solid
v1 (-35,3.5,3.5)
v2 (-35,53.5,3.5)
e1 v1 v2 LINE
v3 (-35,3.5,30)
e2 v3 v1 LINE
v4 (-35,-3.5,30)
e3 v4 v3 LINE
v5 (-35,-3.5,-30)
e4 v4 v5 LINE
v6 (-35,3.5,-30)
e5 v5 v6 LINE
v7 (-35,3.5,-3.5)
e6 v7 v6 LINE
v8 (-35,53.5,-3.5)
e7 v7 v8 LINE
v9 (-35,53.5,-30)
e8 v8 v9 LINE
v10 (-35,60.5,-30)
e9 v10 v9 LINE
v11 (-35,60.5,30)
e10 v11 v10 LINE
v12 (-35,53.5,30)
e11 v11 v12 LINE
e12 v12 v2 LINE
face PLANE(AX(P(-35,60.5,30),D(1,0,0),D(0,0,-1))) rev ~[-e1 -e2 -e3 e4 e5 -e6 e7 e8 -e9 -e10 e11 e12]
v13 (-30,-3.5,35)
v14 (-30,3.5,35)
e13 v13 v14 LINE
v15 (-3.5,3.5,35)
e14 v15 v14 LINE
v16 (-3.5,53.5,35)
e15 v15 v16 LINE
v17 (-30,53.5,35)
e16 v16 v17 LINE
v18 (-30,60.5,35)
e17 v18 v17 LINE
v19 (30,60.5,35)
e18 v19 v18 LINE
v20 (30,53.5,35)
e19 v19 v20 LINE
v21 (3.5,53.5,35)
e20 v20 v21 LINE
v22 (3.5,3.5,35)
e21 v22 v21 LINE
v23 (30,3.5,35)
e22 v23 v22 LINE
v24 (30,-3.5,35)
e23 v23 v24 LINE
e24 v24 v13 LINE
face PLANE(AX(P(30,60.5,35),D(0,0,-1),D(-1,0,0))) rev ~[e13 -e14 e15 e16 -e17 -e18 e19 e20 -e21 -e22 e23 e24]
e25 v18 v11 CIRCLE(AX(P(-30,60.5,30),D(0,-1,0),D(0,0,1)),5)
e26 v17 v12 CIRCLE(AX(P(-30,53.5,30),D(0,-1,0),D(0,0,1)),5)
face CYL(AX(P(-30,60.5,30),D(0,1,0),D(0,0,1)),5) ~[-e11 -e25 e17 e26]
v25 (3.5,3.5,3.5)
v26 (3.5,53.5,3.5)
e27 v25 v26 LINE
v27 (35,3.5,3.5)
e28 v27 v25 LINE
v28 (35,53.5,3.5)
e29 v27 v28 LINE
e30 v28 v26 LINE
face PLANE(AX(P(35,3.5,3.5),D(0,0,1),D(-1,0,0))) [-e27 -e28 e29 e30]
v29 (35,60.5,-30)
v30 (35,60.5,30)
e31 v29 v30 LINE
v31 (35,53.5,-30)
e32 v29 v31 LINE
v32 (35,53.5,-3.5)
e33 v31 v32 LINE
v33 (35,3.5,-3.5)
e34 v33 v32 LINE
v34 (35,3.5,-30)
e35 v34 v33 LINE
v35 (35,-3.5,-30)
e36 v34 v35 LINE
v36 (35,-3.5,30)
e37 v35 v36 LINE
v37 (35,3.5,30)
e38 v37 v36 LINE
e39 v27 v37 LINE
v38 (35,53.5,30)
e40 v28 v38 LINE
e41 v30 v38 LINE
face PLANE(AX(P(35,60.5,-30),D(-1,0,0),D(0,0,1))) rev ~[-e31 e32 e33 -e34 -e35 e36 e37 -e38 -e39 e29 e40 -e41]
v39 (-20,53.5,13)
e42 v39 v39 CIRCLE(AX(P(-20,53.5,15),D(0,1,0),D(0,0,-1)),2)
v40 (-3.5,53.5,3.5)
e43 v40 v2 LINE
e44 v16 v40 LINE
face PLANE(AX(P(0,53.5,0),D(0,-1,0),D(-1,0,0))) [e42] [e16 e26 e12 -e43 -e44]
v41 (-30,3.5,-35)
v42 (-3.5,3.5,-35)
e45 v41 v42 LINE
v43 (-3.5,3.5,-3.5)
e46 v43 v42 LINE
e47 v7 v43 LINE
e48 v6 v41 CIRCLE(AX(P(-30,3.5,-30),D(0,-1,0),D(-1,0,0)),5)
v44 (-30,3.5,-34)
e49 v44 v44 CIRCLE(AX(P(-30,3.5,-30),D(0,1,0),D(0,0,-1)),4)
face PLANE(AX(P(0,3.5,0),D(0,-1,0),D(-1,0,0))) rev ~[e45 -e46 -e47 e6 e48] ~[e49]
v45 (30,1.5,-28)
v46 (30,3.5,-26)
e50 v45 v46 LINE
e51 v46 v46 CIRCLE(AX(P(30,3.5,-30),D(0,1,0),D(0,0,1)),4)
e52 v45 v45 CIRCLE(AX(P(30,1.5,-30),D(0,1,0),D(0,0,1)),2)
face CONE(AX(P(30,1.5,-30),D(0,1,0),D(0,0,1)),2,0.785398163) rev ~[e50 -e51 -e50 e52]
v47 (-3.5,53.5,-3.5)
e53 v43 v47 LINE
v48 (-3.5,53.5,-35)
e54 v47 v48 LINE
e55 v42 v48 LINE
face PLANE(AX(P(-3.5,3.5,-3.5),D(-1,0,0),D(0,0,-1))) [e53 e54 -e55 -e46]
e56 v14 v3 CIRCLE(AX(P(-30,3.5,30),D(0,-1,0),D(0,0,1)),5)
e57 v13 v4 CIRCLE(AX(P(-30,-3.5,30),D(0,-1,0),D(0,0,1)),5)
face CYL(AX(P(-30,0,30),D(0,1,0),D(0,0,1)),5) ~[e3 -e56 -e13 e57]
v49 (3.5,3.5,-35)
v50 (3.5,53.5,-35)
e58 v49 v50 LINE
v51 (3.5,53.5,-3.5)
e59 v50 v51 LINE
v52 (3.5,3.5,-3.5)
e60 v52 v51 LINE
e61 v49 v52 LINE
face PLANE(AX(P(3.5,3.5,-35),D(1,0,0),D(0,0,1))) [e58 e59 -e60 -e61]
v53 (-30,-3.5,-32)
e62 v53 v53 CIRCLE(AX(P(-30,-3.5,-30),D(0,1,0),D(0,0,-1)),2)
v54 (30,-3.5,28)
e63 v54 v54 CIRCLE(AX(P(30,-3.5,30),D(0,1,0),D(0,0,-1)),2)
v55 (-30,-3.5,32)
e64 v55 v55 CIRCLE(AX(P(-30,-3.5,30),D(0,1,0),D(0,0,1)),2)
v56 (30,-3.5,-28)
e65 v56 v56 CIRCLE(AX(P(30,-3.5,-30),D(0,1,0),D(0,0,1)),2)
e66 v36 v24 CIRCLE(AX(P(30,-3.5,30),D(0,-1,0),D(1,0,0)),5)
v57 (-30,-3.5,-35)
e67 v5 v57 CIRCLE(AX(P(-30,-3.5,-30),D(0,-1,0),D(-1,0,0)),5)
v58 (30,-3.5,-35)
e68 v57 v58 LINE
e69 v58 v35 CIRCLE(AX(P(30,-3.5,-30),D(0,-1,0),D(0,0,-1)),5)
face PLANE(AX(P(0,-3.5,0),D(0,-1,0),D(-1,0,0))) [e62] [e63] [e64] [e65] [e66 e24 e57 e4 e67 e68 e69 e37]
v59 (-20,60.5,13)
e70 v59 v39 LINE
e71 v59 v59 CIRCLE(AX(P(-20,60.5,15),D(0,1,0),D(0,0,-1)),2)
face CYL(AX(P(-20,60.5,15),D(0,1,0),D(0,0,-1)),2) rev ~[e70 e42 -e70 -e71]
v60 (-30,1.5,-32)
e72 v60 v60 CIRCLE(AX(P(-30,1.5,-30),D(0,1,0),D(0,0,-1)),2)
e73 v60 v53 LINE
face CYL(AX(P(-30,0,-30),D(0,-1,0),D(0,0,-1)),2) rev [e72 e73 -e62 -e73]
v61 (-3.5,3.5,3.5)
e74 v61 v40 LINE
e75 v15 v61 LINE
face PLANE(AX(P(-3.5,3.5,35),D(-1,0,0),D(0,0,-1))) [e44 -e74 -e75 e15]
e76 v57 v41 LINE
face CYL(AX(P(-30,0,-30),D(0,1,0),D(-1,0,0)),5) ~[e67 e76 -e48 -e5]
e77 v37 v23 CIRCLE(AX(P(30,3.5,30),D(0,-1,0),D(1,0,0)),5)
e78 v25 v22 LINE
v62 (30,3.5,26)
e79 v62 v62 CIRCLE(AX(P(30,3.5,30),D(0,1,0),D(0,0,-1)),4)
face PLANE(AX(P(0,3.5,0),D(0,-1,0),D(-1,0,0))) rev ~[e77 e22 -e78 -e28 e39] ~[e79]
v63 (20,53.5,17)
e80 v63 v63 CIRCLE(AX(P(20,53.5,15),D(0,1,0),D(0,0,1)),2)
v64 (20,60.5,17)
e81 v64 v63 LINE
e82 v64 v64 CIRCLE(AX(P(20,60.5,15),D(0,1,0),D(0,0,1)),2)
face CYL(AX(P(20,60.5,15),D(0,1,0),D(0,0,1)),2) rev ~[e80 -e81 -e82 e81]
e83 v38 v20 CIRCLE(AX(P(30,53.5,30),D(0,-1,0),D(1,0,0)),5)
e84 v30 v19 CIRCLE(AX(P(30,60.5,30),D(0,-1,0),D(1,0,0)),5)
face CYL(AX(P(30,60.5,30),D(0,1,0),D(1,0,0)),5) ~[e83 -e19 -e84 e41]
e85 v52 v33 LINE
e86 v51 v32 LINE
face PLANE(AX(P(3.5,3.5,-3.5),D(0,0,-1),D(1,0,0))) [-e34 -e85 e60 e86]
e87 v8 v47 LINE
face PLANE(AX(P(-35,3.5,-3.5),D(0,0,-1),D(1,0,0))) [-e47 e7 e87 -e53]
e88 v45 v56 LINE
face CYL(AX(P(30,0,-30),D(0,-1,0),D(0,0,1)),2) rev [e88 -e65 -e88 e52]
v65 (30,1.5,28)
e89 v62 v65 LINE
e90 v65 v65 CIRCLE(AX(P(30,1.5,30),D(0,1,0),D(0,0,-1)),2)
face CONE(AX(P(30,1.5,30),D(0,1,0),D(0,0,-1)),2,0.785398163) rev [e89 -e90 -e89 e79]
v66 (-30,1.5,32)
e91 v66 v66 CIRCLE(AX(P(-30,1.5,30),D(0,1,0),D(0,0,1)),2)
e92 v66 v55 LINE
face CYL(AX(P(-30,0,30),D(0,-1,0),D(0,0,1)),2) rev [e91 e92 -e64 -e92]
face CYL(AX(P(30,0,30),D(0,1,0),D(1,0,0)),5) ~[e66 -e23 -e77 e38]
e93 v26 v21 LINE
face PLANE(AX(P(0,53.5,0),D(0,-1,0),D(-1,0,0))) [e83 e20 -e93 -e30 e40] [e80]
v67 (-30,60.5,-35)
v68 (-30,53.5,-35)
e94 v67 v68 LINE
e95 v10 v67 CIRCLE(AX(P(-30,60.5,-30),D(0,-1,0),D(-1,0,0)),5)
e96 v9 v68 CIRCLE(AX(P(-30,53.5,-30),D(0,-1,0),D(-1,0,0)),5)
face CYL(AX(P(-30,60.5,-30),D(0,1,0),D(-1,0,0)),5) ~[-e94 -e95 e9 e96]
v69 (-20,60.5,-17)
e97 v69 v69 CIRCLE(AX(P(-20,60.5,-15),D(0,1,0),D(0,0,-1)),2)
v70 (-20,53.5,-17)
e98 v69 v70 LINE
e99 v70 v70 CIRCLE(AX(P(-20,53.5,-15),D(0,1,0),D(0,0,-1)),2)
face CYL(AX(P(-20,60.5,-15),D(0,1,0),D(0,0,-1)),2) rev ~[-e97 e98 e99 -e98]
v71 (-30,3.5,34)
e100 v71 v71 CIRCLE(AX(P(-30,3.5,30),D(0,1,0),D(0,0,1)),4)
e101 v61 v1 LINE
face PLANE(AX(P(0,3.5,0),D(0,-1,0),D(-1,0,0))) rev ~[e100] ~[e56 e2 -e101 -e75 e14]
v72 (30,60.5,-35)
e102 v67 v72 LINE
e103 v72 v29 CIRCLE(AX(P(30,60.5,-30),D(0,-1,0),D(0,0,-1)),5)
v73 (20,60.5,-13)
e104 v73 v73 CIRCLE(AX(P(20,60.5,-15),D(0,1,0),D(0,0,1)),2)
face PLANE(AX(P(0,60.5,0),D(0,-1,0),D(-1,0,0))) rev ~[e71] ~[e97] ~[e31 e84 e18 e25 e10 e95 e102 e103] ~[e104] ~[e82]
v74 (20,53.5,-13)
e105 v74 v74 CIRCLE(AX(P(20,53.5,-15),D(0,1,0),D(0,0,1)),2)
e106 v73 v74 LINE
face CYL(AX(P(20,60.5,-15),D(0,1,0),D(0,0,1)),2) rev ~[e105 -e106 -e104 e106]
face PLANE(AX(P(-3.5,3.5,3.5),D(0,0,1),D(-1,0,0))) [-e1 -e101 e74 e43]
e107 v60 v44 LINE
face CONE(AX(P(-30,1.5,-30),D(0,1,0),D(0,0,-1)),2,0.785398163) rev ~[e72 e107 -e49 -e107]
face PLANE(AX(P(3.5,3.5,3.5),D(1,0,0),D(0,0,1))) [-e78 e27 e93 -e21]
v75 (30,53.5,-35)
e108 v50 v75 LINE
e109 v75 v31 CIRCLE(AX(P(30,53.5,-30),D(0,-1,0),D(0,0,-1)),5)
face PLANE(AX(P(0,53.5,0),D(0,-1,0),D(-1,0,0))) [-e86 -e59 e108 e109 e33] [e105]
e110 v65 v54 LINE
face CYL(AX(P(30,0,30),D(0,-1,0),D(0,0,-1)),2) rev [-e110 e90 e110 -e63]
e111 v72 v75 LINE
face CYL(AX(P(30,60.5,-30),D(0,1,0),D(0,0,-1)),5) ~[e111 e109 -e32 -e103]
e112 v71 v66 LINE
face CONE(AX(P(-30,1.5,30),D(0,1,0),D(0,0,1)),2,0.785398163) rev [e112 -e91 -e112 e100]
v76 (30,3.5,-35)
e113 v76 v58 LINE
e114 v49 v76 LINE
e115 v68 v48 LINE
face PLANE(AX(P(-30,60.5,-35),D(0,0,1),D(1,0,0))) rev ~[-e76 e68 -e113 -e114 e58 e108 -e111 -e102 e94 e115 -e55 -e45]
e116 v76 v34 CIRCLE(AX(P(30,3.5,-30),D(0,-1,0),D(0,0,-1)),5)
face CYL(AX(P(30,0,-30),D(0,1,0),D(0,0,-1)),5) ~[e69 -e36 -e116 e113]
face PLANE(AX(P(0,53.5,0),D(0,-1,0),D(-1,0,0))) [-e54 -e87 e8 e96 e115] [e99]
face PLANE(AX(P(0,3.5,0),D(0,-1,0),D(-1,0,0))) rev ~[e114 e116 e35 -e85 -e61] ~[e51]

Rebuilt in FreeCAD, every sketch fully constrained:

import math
import FreeCAD as App
import Part
import Sketcher
Q = App.Units.Quantity


def edges_at(feature, points):
    """Names of the edges that pass closest to the given points."""
    edges = feature.Shape.Edges
    near = lambda p: min(range(len(edges)), key=lambda i: edges[i].distToShape(Part.Vertex(*p))[0])
    return sorted({f"Edge{near(p) + 1}" for p in points})


def add_polygon(sketch, points):
    """Adds a closed chain of lines whose ends are joined by coincident constraints."""
    first, n = sketch.GeometryCount, len(points)
    for a, b in zip(points, points[1:] + points[:1]):
        sketch.addGeometry(Part.LineSegment(App.Vector(*a, 0), App.Vector(*b, 0)), False)
    for i in range(n):
        sketch.addConstraint(Sketcher.Constraint("Coincident", first + i, 2, first + (i + 1) % n, 1))

doc = App.newDocument("Part")
params = doc.addObject("Spreadsheet::Sheet", "Params")
for row, (alias, value) in enumerate([
    ("sketch1_diameter", "4 mm"),
    ("sketch1_radius", "5 mm"),
    ("sketch1_width", "60 mm"),
    ("pad1_length", "7 mm"),
    ("sketch2_width", "7 mm"),
    ("sketch2_width2", "31.5 mm"),
    ("pad2_length", "50 mm"),
    ("sketch3_diameter", "4 mm"),
    ("sketch3_radius", "5 mm"),
    ("sketch3_width", "60 mm"),
    ("pad3_length", "7 mm"),
    ("chamfer_size", "2 mm"),
], start=1):
    params.set(f"A{row}", alias)
    params.set(f"B{row}", "=" + value)
    params.setAlias(f"B{row}", alias)

body = doc.addObject("PartDesign::Body", "Body")

sketch1 = body.newObject("Sketcher::SketchObject", "Sketch")
sketch1.AttachmentSupport = (doc.getObject("XZ_Plane"), [""])
sketch1.MapMode = "FlatFace"
sketch1.addGeometry([
    Part.LineSegment(App.Vector(30, -35, 0), App.Vector(-30, -35, 0)),
    Part.ArcOfCircle(Part.Circle(App.Vector(-30, -30, 0), App.Vector(0, 0, 1), 5), math.radians(180), math.radians(270)),
    Part.LineSegment(App.Vector(-35, -30, 0), App.Vector(-35, 30, 0)),
    Part.ArcOfCircle(Part.Circle(App.Vector(-30, 30, 0), App.Vector(0, 0, 1), 5), math.radians(90), math.radians(180)),
    Part.LineSegment(App.Vector(-30, 35, 0), App.Vector(30, 35, 0)),
    Part.ArcOfCircle(Part.Circle(App.Vector(30, 30, 0), App.Vector(0, 0, 1), 5), math.radians(0), math.radians(90)),
    Part.LineSegment(App.Vector(35, 30, 0), App.Vector(35, -30, 0)),
    Part.ArcOfCircle(Part.Circle(App.Vector(30, -30, 0), App.Vector(0, 0, 1), 5), math.radians(-90), math.radians(0)),
    Part.Circle(App.Vector(30, 30, 0), App.Vector(0, 0, 1), 2),
    Part.Circle(App.Vector(-30, 30, 0), App.Vector(0, 0, 1), 2),
    Part.Circle(App.Vector(30, -30, 0), App.Vector(0, 0, 1), 2),
    Part.Circle(App.Vector(-30, -30, 0), App.Vector(0, 0, 1), 2),
], False)
sketch1.addConstraint([
    Sketcher.Constraint("Tangent", 0, 2, 1, 2),
    Sketcher.Constraint("Tangent", 1, 1, 2, 1),
    Sketcher.Constraint("Tangent", 2, 2, 3, 2),
    Sketcher.Constraint("Tangent", 3, 1, 4, 1),
    Sketcher.Constraint("Tangent", 4, 2, 5, 2),
    Sketcher.Constraint("Tangent", 5, 1, 6, 1),
    Sketcher.Constraint("Tangent", 6, 2, 7, 2),
    Sketcher.Constraint("Tangent", 7, 1, 0, 1),
    Sketcher.Constraint("Horizontal", 0),
    Sketcher.Constraint("Vertical", 2),
    Sketcher.Constraint("Horizontal", 4),
    Sketcher.Constraint("Vertical", 6),
    Sketcher.Constraint("Coincident", 8, 3, 5, 3),
    Sketcher.Constraint("Coincident", 9, 3, 3, 3),
    Sketcher.Constraint("Coincident", 10, 3, 7, 3),
    Sketcher.Constraint("Coincident", 11, 3, 1, 3),
    Sketcher.Constraint("Equal", 1, 3),
    Sketcher.Constraint("Equal", 3, 5),
    Sketcher.Constraint("Equal", 5, 7),
    Sketcher.Constraint("Equal", 8, 9),
    Sketcher.Constraint("Equal", 9, 10),
    Sketcher.Constraint("Equal", 10, 11),
    Sketcher.Constraint("Symmetric", 1, 3, 5, 3, -1, 1),
    Sketcher.Constraint("Equal", 4, 2),
    Sketcher.Constraint("Diameter", 8, Q("4 mm")),
    Sketcher.Constraint("Radius", 1, Q("5 mm")),
    Sketcher.Constraint("DistanceX", 0, 2, 0, 1, Q("60 mm")),
])
sketch1.setExpression("Constraints[24]", "Params.sketch1_diameter")
sketch1.setExpression("Constraints[25]", "Params.sketch1_radius")
sketch1.setExpression("Constraints[26]", "Params.sketch1_width")
pad1 = body.newObject("PartDesign::Pad", "Pad")
pad1.Profile = sketch1
pad1.setExpression("Length", "Params.pad1_length")
pad1.Midplane = True

sketch2 = body.newObject("Sketcher::SketchObject", "Sketch001")
sketch2.AttachmentSupport = (doc.getObject("XZ_Plane"), [""])
sketch2.MapMode = "FlatFace"
sketch2.AttachmentOffset = App.Placement(App.Vector(0, 0, -3.5), App.Rotation())
add_polygon(sketch2, [(4, -35), (-4, -35), (-4, -4), (-35, -4), (-35, 4), (-4, 4), (-4, 35), (4, 35), (4, 4), (35, 4), (35, -4), (4, -4)])
sketch2.addConstraint([
    Sketcher.Constraint("Horizontal", 0),
    Sketcher.Constraint("Vertical", 1),
    Sketcher.Constraint("Horizontal", 2),
    Sketcher.Constraint("Vertical", 3),
    Sketcher.Constraint("Horizontal", 4),
    Sketcher.Constraint("Vertical", 5),
    Sketcher.Constraint("Horizontal", 6),
    Sketcher.Constraint("Vertical", 7),
    Sketcher.Constraint("Horizontal", 8),
    Sketcher.Constraint("Vertical", 9),
    Sketcher.Constraint("Horizontal", 10),
    Sketcher.Constraint("Vertical", 11),
    Sketcher.Constraint("Symmetric", 0, 2, 6, 2, -1, 1),
    Sketcher.Constraint("Symmetric", 2, 2, 8, 2, -1, 1),
    Sketcher.Constraint("Symmetric", 4, 2, 10, 2, -1, 1),
    Sketcher.Constraint("Symmetric", 4, 2, 7, 2, -2),
    Sketcher.Constraint("Equal", 10, 1),
    Sketcher.Constraint("Equal", 6, 3),
    Sketcher.Constraint("DistanceX", 0, 2, 0, 1, Q("7 mm")),
    Sketcher.Constraint("DistanceX", 2, 2, 2, 1, Q("31.5 mm")),
])
sketch2.setExpression("Constraints[30]", "Params.sketch2_width")
sketch2.setExpression("Constraints[31]", "Params.sketch2_width2")
pad2 = body.newObject("PartDesign::Pad", "Pad001")
pad2.Profile = sketch2
pad2.setExpression("Length", "Params.pad2_length")
pad2.Reversed = True

sketch3 = body.newObject("Sketcher::SketchObject", "Sketch002")
sketch3.AttachmentSupport = (doc.getObject("XZ_Plane"), [""])
sketch3.MapMode = "FlatFace"
sketch3.AttachmentOffset = App.Placement(App.Vector(0, 0, -60.5), App.Rotation())
sketch3.addGeometry([
    Part.LineSegment(App.Vector(-30, 35, 0), App.Vector(30, 35, 0)),
    Part.ArcOfCircle(Part.Circle(App.Vector(30, 30, 0), App.Vector(0, 0, 1), 5), math.radians(0), math.radians(90)),
    Part.LineSegment(App.Vector(35, 30, 0), App.Vector(35, -30, 0)),
    Part.ArcOfCircle(Part.Circle(App.Vector(30, -30, 0), App.Vector(0, 0, 1), 5), math.radians(-90), math.radians(0)),
    Part.LineSegment(App.Vector(30, -35, 0), App.Vector(-30, -35, 0)),
    Part.ArcOfCircle(Part.Circle(App.Vector(-30, -30, 0), App.Vector(0, 0, 1), 5), math.radians(180), math.radians(270)),
    Part.LineSegment(App.Vector(-35, -30, 0), App.Vector(-35, 30, 0)),
    Part.ArcOfCircle(Part.Circle(App.Vector(-30, 30, 0), App.Vector(0, 0, 1), 5), math.radians(90), math.radians(180)),
    Part.Circle(App.Vector(20, 15, 0), App.Vector(0, 0, 1), 2),
    Part.Circle(App.Vector(-20, 15, 0), App.Vector(0, 0, 1), 2),
    Part.Circle(App.Vector(20, -15, 0), App.Vector(0, 0, 1), 2),
    Part.Circle(App.Vector(-20, -15, 0), App.Vector(0, 0, 1), 2),
], False)
sketch3.addConstraint([
    Sketcher.Constraint("Tangent", 0, 2, 1, 2),
    Sketcher.Constraint("Tangent", 1, 1, 2, 1),
    Sketcher.Constraint("Tangent", 2, 2, 3, 2),
    Sketcher.Constraint("Tangent", 3, 1, 4, 1),
    Sketcher.Constraint("Tangent", 4, 2, 5, 2),
    Sketcher.Constraint("Tangent", 5, 1, 6, 1),
    Sketcher.Constraint("Tangent", 6, 2, 7, 2),
    Sketcher.Constraint("Tangent", 7, 1, 0, 1),
    Sketcher.Constraint("Horizontal", 0),
    Sketcher.Constraint("Vertical", 2),
    Sketcher.Constraint("Horizontal", 4),
    Sketcher.Constraint("Vertical", 6),
    Sketcher.Constraint("Equal", 1, 3),
    Sketcher.Constraint("Equal", 3, 5),
    Sketcher.Constraint("Equal", 5, 7),
    Sketcher.Constraint("Equal", 8, 9),
    Sketcher.Constraint("Equal", 9, 10),
    Sketcher.Constraint("Equal", 10, 11),
    Sketcher.Constraint("Symmetric", 1, 3, 5, 3, -1, 1),
    Sketcher.Constraint("Symmetric", 9, 3, 10, 3, -1, 1),
    Sketcher.Constraint("Symmetric", 8, 3, 11, 3, -1, 1),
    Sketcher.Constraint("Symmetric", 8, 3, 9, 3, -2),
    Sketcher.Constraint("Equal", 4, 2),
    Sketcher.Constraint("Diameter", 8, Q("4 mm")),
    Sketcher.Constraint("Radius", 1, Q("5 mm")),
    Sketcher.Constraint("DistanceX", 0, 1, 0, 2, Q("60 mm")),
    Sketcher.Constraint("DistanceX", -1, 1, 8, 3, Q("20 mm")),
    Sketcher.Constraint("DistanceY", -1, 1, 8, 3, Q("15 mm")),
])
sketch3.setExpression("Constraints[23]", "Params.sketch3_diameter")
sketch3.setExpression("Constraints[24]", "Params.sketch3_radius")
sketch3.setExpression("Constraints[25]", "Params.sketch3_width")
pad3 = body.newObject("PartDesign::Pad", "Pad002")
pad3.Profile = sketch3
pad3.setExpression("Length", "Params.pad3_length")
doc.recompute()

chamfer = body.newObject("PartDesign::Chamfer", "Chamfer")
chamfer.Base = (pad3, edges_at(pad3, [
    (30, 3.5, -32),
    (-30, 3.5, -28),
    (30, 3.5, 32),
    (-30, 3.5, 28),
]))
chamfer.setExpression("Size", "Params.chamfer_size")

doc.recompute()
